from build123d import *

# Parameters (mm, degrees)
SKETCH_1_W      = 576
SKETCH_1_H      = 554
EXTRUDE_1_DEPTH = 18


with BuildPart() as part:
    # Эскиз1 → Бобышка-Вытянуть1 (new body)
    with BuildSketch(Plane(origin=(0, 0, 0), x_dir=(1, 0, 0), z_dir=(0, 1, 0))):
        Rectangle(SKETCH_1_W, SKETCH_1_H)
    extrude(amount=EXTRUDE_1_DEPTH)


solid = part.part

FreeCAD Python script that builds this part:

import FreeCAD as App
import Part
import Sketcher
from FreeCAD import Vector


def add_polygon(sketch, points):
    """Adds a closed chain of lines whose ends are joined by coincident constraints."""
    first, n = sketch.GeometryCount, len(points)
    for a, b in zip(points, points[1:] + points[:1]):
        sketch.addGeometry(Part.LineSegment(App.Vector(*a, 0), App.Vector(*b, 0)), False)
    for i in range(n):
        sketch.addConstraint(Sketcher.Constraint("Coincident", first + i, 2, first + (i + 1) % n, 1))

doc = App.newDocument("Part")
body = doc.addObject("PartDesign::Body", "Body")

sketch1 = doc.addObject("Sketcher::SketchObject", "Sketch")
body.addObject(sketch1)
sketch1.AttachmentSupport = (doc.XZ_Plane, [""])
sketch1.MapMode = "FlatFace"
add_polygon(sketch1, [(-288, -277), (-288, 277), (288, 277), (288, -277)])
sketch1.addConstraint([
    Sketcher.Constraint("Vertical", 0),
    Sketcher.Constraint("Horizontal", 1),
    Sketcher.Constraint("Vertical", 2),
    Sketcher.Constraint("Horizontal", 3),
    Sketcher.Constraint("Symmetric", 0, 2, 2, 2, -1, 1),
    Sketcher.Constraint("DistanceX", 1, 1, 1, 2, 576.0),
    Sketcher.Constraint("DistanceY", 0, 1, 0, 2, 554.0),
])
pad1 = doc.addObject("PartDesign::Pad", "Pad")
body.addObject(pad1)
pad1.Profile = sketch1
pad1.Length = 18
pad1.Reversed = True

doc.recompute()
